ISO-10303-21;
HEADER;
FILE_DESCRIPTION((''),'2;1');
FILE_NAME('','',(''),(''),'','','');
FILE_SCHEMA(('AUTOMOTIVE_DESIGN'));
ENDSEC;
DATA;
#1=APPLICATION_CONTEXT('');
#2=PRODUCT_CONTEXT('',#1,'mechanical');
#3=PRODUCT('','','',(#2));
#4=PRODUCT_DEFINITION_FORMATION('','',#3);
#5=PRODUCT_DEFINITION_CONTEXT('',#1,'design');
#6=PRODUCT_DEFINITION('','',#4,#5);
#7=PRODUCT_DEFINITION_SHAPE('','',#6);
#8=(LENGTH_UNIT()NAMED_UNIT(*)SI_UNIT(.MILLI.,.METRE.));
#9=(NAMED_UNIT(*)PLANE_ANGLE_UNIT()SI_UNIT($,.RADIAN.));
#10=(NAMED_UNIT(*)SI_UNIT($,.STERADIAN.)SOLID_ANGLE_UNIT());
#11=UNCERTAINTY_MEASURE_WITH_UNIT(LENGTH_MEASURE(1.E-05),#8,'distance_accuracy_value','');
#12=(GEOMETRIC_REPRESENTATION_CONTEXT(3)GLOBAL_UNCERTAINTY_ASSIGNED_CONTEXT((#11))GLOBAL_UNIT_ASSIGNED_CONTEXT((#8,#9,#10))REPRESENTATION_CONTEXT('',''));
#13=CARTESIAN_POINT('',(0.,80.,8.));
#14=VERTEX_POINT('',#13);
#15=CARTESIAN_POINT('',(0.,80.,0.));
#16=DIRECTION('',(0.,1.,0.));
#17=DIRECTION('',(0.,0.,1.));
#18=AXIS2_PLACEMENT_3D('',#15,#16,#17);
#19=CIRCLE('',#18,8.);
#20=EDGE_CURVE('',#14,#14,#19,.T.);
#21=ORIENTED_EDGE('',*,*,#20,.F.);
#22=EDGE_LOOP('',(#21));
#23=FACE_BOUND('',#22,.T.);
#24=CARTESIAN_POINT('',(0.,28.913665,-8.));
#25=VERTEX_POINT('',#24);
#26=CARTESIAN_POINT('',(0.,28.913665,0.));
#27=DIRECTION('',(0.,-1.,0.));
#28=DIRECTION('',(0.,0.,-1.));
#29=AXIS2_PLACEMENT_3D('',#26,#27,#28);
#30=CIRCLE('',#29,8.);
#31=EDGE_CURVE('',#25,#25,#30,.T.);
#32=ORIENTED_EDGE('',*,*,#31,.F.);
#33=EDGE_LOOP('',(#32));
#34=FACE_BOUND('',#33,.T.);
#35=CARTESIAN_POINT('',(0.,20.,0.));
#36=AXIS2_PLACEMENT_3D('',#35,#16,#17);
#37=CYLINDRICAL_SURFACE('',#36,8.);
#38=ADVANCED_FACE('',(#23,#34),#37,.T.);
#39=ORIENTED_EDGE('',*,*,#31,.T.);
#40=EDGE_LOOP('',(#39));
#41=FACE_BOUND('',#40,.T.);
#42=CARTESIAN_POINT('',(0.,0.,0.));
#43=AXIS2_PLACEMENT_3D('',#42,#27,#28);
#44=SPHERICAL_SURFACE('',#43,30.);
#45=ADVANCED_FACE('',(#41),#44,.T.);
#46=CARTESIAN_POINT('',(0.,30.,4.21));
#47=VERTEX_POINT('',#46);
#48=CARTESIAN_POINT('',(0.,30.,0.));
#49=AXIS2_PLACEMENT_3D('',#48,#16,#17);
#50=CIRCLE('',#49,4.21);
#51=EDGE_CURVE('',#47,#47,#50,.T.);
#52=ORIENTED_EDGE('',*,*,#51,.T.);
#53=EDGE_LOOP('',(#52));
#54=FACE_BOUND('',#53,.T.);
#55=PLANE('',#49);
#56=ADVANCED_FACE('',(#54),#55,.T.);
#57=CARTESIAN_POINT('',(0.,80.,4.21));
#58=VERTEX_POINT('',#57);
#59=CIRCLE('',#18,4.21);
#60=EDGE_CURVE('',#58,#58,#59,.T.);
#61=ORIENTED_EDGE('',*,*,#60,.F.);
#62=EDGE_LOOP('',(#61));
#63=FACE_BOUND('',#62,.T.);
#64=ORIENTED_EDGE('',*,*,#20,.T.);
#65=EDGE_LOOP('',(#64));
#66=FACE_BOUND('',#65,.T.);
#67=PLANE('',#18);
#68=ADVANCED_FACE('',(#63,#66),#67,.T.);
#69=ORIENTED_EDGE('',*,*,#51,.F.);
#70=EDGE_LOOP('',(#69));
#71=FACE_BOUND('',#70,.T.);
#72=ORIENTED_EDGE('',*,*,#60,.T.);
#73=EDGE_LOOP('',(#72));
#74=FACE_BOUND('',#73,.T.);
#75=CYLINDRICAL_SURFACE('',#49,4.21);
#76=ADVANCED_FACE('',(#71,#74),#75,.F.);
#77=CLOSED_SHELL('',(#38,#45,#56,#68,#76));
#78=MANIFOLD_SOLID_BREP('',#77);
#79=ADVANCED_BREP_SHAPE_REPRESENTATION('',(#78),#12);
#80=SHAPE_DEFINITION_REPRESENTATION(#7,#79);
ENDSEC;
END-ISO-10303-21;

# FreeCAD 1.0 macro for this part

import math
import FreeCAD as App
import Part
import Sketcher

V = App.Vector
Q = App.Units.Quantity

doc = App.newDocument("Part")
body = doc.addObject("PartDesign::Body", "Body")

# Sketch on XZ plane
sketch1 = body.newObject("Sketcher::SketchObject", "Sketch")
sketch1.AttachmentSupport = (doc.getObject("XZ_Plane"), [""])
sketch1.MapMode = "FlatFace"
sketch1.addGeometry([
    Part.LineSegment(V(0, -30, 0), V(0, 30, 0)),
    Part.ArcOfCircle(Part.Circle(V(0, 0, 0), V(0, 0, 1), 30), math.radians(-90), math.radians(90)),
], False)
sketch1.addConstraint([
    Sketcher.Constraint("Coincident", 0, 1, 1, 1),
    Sketcher.Constraint("Coincident", 1, 2, 0, 2),
    Sketcher.Constraint("Vertical", 0),
    Sketcher.Constraint("Coincident", 1, 3, -1, 1),
    Sketcher.Constraint("PointOnObject", 0, 1, -2),
    Sketcher.Constraint("Radius", 1, Q("30 mm")),
])
revolution = body.newObject("PartDesign::Revolution", "Revolution")
revolution.Profile = sketch1
revolution.ReferenceAxis = (sketch1, ["V_Axis"])
revolution.Angle = 360

# Sketch on XZ plane
sketch2 = body.newObject("Sketcher::SketchObject", "Sketch001")
sketch2.AttachmentSupport = (doc.getObject("XZ_Plane"), [""])
sketch2.MapMode = "FlatFace"
sketch2.AttachmentOffset = App.Placement(V(0, 0, -30), App.Rotation())
sketch2.addGeometry(Part.Circle(V(0, 0, 0), V(0, 0, 1), 8), False)
sketch2.addConstraint([
    Sketcher.Constraint("Coincident", 0, 3, -1, 1),
    Sketcher.Constraint("Diameter", 0, Q("16 mm")),
])
pad1 = body.newObject("PartDesign::Pad", "Pad")
pad1.Profile = sketch2
pad1.Type = "TwoLengths"
pad1.Length = 50
pad1.Length2 = 10
pad1.Reversed = True

# Sketch on XZ plane
sketch3 = body.newObject("Sketcher::SketchObject", "Sketch002")
sketch3.AttachmentSupport = (doc.getObject("XZ_Plane"), [""])
sketch3.MapMode = "FlatFace"
sketch3.AttachmentOffset = App.Placement(V(0, 0, -80), App.Rotation())
sketch3.addGeometry(Part.Circle(V(0, 0, 0), V(0, 0, 1), 4.21), False)
sketch3.addConstraint([
    Sketcher.Constraint("Coincident", 0, 3, -1, 1),
    Sketcher.Constraint("Diameter", 0, Q("8.42 mm")),
])
pocket1 = body.newObject("PartDesign::Pocket", "Pocket")
pocket1.Profile = sketch3
pocket1.Length = 50
pocket1.Reversed = True

doc.recompute()
